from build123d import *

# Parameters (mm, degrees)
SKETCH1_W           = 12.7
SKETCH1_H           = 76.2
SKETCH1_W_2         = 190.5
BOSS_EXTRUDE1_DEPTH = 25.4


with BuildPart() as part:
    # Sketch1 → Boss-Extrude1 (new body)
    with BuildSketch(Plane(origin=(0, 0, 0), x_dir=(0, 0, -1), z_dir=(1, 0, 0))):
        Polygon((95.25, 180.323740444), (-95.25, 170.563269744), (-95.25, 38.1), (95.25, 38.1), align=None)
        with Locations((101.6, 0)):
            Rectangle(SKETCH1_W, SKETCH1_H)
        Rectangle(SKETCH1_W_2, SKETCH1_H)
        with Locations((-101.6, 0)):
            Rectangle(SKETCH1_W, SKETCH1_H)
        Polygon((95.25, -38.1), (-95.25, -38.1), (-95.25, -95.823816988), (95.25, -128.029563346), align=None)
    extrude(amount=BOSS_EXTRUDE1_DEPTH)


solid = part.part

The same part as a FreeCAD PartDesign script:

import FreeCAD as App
import Part
import Sketcher
Q = App.Units.Quantity


def add_polygon(sketch, points):
    """Adds a closed chain of lines whose ends are joined by coincident constraints."""
    first, n = sketch.GeometryCount, len(points)
    for a, b in zip(points, points[1:] + points[:1]):
        sketch.addGeometry(Part.LineSegment(App.Vector(*a, 0), App.Vector(*b, 0)), False)
    for i in range(n):
        sketch.addConstraint(Sketcher.Constraint("Coincident", first + i, 2, first + (i + 1) % n, 1))

doc = App.newDocument("Part")
params = doc.addObject("Spreadsheet::Sheet", "Params")
for row, (alias, value) in enumerate([
    ("sketch1_width", "3 in"),
    ("sketch1_height", "0.5 in"),
    ("pad1_length", "1 in"),
], start=1):
    params.set(f"A{row}", alias)
    params.set(f"B{row}", "=" + value)
    params.setAlias(f"B{row}", alias)

body = doc.addObject("PartDesign::Body", "Body")

# Sketch on YZ plane
sketch1 = body.newObject("Sketcher::SketchObject", "Sketch")
sketch1.AttachmentSupport = (doc.getObject("YZ_Plane"), [""])
sketch1.MapMode = "FlatFace"
add_polygon(sketch1, [(180, -95), (171, 95), (38, 95), (38, 108), (-38, 108), (-38, 95), (-96, 95), (-128, -95), (-38, -95), (-38, -108), (38, -108), (38, -95)])  # lines 0-11
sketch1.addConstraint([
    Sketcher.Constraint("Horizontal", 1),
    Sketcher.Constraint("Vertical", 2),
    Sketcher.Constraint("Horizontal", 3),
    Sketcher.Constraint("Vertical", 4),
    Sketcher.Constraint("Horizontal", 5),
    Sketcher.Constraint("Horizontal", 7),
    Sketcher.Constraint("Vertical", 8),
    Sketcher.Constraint("Horizontal", 9),
    Sketcher.Constraint("Vertical", 10),
    Sketcher.Constraint("Horizontal", 11),
    Sketcher.Constraint("Symmetric", 1, 2, 7, 2, -1, 1),
    Sketcher.Constraint("Symmetric", 3, 2, 9, 2, -1, 1),
    Sketcher.Constraint("Symmetric", 1, 2, 4, 2, -2),
    Sketcher.Constraint("Horizontal", 7, 2, 10, 2),
    Sketcher.Constraint("DistanceX", 3, 2, 3, 1, Q("3 in")),
    Sketcher.Constraint("DistanceY", 2, 1, 2, 2, Q("0.5 in")),
    Sketcher.Constraint("DistanceY", 6, 2, 3, 2, Q("8 in")),
    Sketcher.Constraint("DistanceX", 1, 2, 1, 1, 132.46327),
    Sketcher.Constraint("DistanceX", 11, 1, 11, 2, 142.22374),
    Sketcher.Constraint("DistanceX", 5, 2, 5, 1, 57.723817),
    Sketcher.Constraint("DistanceX", 7, 1, 7, 2, 89.929563),
])
sketch1.setExpression("Constraints[26]", "Params.sketch1_width")
sketch1.setExpression("Constraints[27]", "Params.sketch1_height")
pad1 = body.newObject("PartDesign::Pad", "Pad")
pad1.Profile = sketch1
pad1.setExpression("Length", "Params.pad1_length")

doc.recompute()
